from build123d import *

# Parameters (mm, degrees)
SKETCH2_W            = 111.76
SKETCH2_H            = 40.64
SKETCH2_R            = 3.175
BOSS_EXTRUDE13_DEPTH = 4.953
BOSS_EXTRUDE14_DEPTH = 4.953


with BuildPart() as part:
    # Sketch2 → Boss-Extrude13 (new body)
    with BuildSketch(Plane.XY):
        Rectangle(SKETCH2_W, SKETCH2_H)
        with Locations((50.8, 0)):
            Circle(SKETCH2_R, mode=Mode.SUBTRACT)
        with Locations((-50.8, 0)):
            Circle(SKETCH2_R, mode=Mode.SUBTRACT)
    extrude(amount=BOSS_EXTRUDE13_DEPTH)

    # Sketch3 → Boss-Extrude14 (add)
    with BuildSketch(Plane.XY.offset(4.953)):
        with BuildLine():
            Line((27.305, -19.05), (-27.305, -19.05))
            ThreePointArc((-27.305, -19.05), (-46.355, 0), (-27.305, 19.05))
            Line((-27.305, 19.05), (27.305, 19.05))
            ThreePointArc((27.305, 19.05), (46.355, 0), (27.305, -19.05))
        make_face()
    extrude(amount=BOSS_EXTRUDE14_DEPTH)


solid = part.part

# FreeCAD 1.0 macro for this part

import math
import FreeCAD as App
import Part
import Sketcher
Q = App.Units.Quantity


def add_polygon(sketch, points):
    """Adds a closed chain of lines whose ends are joined by coincident constraints."""
    first, n = sketch.GeometryCount, len(points)
    for a, b in zip(points, points[1:] + points[:1]):
        sketch.addGeometry(Part.LineSegment(App.Vector(*a, 0), App.Vector(*b, 0)), False)
    for i in range(n):
        sketch.addConstraint(Sketcher.Constraint("Coincident", first + i, 2, first + (i + 1) % n, 1))

doc = App.newDocument("Part")
params = doc.addObject("Spreadsheet::Sheet", "Params")
for row, (alias, value) in enumerate([
    ("sketch1_diameter", "0.25 in"),
    ("sketch1_width", "4.4 in"),
    ("sketch1_height", "1.6 in"),
    ("pad1_length", "0.195 in"),
    ("sketch2_radius", "0.75 in"),
    ("sketch2_width", "2.15 in"),
    ("pad2_length", "0.195 in"),
], start=1):
    params.set(f"A{row}", alias)
    params.set(f"B{row}", "=" + value)
    params.setAlias(f"B{row}", alias)

body = doc.addObject("PartDesign::Body", "Body")

# Sketch on XY plane
sketch1 = body.newObject("Sketcher::SketchObject", "Sketch")
sketch1.AttachmentSupport = (doc.getObject("XY_Plane"), [""])
sketch1.MapMode = "FlatFace"
add_polygon(sketch1, [(-55.9, 20.3), (-55.9, -20.3), (55.9, -20.3), (55.9, 20.3)])  # lines 0-3
sketch1.addGeometry(Part.Circle(App.Vector(-50.8, 0, 0), App.Vector(0, 0, 1), 3.2), False)  # 4
sketch1.addGeometry(Part.Circle(App.Vector(50.8, 0, 0), App.Vector(0, 0, 1), 3.2), False)  # 5
sketch1.addConstraint([
    Sketcher.Constraint("Vertical", 0),
    Sketcher.Constraint("Horizontal", 1),
    Sketcher.Constraint("Vertical", 2),
    Sketcher.Constraint("Horizontal", 3),
    Sketcher.Constraint("Equal", 4, 5),
    Sketcher.Constraint("Symmetric", 4, 3, 5, 3, -1, 1),
    Sketcher.Constraint("Symmetric", 0, 2, 2, 2, -1, 1),
    Sketcher.Constraint("PointOnObject", 4, 3, -1),
    Sketcher.Constraint("Diameter", 4, Q("0.25 in")),
    Sketcher.Constraint("DistanceX", 1, 1, 1, 2, Q("4.4 in")),
    Sketcher.Constraint("DistanceY", 0, 2, 0, 1, Q("1.6 in")),
    Sketcher.Constraint("DistanceX", 4, 3, -1, 1, Q("2 in")),
])
sketch1.setExpression("Constraints[12]", "Params.sketch1_diameter")
sketch1.setExpression("Constraints[13]", "Params.sketch1_width")
sketch1.setExpression("Constraints[14]", "Params.sketch1_height")
pad1 = body.newObject("PartDesign::Pad", "Pad")
pad1.Profile = sketch1
pad1.setExpression("Length", "Params.pad1_length")

# Sketch on XY plane
sketch2 = body.newObject("Sketcher::SketchObject", "Sketch001")
sketch2.AttachmentSupport = (doc.getObject("XY_Plane"), [""])
sketch2.MapMode = "FlatFace"
sketch2.AttachmentOffset = App.Placement(App.Vector(0, 0, 0.195 * 25.4), App.Rotation())
sketch2.addGeometry([
    Part.LineSegment(App.Vector(-27, -19, 0), App.Vector(27, -19, 0)),
    Part.ArcOfCircle(Part.Circle(App.Vector(27, 0, 0), App.Vector(0, 0, 1), 19), math.radians(-90), math.radians(90)),
    Part.LineSegment(App.Vector(27, 19, 0), App.Vector(-27, 19, 0)),
    Part.ArcOfCircle(Part.Circle(App.Vector(-27, 0, 0), App.Vector(0, 0, 1), 19), math.radians(90), math.radians(270)),
], False)
sketch2.addConstraint([
    Sketcher.Constraint("Tangent", 0, 2, 1, 1),
    Sketcher.Constraint("Tangent", 1, 2, 2, 1),
    Sketcher.Constraint("Tangent", 2, 2, 3, 1),
    Sketcher.Constraint("Tangent", 3, 2, 0, 1),
    Sketcher.Constraint("Horizontal", 0),
    Sketcher.Constraint("Horizontal", 2),
    Sketcher.Constraint("Symmetric", 1, 3, 3, 3, -1, 1),
    Sketcher.Constraint("Radius", 1, Q("0.75 in")),
    Sketcher.Constraint("DistanceX", 0, 1, 0, 2, Q("2.15 in")),
])
sketch2.setExpression("Constraints[7]", "Params.sketch2_radius")
sketch2.setExpression("Constraints[8]", "Params.sketch2_width")
pad2 = body.newObject("PartDesign::Pad", "Pad001")
pad2.Profile = sketch2
pad2.setExpression("Length", "Params.pad2_length")

doc.recompute()
